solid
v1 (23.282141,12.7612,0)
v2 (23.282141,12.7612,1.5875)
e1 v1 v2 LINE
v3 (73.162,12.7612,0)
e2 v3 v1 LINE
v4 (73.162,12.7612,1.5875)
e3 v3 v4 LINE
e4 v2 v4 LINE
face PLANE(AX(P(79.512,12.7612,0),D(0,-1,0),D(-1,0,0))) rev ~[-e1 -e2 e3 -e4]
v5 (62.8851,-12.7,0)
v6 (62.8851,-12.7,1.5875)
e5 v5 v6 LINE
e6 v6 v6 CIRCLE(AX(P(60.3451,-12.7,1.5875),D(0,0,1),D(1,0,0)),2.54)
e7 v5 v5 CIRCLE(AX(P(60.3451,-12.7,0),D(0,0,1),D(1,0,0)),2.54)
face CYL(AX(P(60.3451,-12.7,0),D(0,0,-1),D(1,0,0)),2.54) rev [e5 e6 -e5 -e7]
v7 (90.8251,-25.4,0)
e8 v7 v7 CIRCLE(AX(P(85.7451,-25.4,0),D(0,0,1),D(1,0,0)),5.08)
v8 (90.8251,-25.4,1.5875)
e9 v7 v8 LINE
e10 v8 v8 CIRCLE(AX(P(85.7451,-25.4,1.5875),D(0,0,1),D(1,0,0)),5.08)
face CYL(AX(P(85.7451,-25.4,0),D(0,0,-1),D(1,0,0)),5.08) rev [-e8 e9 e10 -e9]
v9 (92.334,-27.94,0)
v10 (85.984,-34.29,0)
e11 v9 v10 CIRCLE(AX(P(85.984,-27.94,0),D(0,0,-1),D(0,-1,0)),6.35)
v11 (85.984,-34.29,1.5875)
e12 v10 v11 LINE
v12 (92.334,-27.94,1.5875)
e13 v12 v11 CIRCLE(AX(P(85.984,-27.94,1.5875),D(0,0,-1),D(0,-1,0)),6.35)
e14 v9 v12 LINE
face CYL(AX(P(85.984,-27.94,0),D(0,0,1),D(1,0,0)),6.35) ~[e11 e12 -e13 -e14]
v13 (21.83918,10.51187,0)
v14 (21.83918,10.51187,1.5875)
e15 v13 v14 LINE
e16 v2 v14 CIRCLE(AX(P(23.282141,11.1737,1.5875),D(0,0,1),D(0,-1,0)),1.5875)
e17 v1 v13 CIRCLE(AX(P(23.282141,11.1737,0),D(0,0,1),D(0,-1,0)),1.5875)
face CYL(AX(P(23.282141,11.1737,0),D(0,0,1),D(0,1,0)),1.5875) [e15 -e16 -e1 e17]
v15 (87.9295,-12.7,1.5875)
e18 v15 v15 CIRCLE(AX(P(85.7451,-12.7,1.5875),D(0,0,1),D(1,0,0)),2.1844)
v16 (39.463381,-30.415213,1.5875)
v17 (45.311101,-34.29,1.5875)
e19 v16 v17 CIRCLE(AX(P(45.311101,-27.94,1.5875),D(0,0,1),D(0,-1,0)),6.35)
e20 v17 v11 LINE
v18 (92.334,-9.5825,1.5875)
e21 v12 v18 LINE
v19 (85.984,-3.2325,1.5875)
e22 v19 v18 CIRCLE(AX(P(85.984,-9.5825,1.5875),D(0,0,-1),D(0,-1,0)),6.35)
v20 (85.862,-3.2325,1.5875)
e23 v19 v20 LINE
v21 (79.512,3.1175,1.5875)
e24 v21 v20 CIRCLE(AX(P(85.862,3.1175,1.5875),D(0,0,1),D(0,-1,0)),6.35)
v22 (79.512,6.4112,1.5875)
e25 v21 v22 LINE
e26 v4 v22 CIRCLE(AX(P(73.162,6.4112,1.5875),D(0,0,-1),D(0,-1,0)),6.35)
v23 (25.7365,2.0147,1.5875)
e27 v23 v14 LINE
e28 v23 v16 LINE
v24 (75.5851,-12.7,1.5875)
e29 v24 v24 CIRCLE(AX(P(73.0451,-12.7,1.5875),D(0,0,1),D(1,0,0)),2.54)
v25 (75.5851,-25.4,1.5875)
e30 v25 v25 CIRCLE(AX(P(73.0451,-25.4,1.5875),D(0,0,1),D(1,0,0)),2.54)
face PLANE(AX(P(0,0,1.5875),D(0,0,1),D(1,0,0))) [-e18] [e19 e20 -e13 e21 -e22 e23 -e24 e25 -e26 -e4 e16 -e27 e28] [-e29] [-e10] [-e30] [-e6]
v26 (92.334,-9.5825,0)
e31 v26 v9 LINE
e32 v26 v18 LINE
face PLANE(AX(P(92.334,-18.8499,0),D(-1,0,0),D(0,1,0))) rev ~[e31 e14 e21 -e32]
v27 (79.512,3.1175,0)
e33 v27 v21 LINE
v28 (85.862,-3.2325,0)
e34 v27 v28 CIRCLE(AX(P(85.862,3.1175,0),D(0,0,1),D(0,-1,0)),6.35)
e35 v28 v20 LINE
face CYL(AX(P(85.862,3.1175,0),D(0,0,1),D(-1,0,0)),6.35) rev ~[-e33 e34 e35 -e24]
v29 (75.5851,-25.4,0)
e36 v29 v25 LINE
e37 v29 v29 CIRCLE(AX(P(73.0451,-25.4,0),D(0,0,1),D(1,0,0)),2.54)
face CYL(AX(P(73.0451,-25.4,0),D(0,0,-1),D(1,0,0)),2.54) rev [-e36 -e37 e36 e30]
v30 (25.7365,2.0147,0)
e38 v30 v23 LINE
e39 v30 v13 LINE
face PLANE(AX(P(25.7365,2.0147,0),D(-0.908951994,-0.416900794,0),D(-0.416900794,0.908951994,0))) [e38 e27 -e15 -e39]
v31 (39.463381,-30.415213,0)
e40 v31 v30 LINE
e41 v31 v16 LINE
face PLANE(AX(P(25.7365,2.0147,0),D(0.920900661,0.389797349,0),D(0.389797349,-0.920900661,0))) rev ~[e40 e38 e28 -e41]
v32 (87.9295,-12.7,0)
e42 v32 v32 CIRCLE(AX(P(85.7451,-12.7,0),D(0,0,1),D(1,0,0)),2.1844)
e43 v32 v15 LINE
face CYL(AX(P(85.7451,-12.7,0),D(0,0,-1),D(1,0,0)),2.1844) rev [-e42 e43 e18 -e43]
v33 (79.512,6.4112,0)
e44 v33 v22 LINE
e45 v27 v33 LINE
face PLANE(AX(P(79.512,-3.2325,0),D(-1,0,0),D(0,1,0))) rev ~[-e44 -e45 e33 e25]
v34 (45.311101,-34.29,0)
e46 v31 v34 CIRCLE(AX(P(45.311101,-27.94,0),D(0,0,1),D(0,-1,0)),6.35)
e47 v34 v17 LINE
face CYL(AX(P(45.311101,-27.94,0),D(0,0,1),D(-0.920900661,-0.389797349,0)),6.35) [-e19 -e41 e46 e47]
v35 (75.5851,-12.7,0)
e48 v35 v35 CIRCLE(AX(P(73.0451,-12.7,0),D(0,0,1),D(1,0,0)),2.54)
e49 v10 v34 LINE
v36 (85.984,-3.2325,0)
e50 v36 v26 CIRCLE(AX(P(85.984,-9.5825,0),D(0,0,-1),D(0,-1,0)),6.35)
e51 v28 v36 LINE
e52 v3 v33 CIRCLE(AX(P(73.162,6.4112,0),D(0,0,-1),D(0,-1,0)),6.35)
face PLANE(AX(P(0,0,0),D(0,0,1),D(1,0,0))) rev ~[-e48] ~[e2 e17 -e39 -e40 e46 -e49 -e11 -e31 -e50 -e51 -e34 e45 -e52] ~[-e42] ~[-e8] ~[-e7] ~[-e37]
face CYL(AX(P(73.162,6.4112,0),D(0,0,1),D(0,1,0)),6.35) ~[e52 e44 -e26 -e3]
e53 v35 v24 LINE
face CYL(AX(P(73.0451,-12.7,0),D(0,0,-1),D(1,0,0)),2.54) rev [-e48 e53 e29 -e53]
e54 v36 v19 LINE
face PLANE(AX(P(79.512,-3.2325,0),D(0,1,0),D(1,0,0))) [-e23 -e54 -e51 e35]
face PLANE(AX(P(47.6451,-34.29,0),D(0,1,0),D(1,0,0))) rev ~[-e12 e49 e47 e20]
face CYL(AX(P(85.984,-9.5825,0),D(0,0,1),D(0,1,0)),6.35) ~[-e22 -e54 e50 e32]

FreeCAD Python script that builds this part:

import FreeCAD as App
import Part
import Sketcher
Q = App.Units.Quantity


def edges_at(feature, points):
    """Names of the edges that pass closest to the given points."""
    edges = feature.Shape.Edges
    near = lambda p: min(range(len(edges)), key=lambda i: edges[i].distToShape(Part.Vertex(*p))[0])
    return sorted({f"Edge{near(p) + 1}" for p in points})


def add_polygon(sketch, points):
    """Adds a closed chain of lines whose ends are joined by coincident constraints."""
    first, n = sketch.GeometryCount, len(points)
    for a, b in zip(points, points[1:] + points[:1]):
        sketch.addGeometry(Part.LineSegment(App.Vector(*a, 0), App.Vector(*b, 0)), False)
    for i in range(n):
        sketch.addConstraint(Sketcher.Constraint("Coincident", first + i, 2, first + (i + 1) % n, 1))

doc = App.newDocument("Part")
body = doc.addObject("PartDesign::Body", "Body")

sketch1 = body.newObject("Sketcher::SketchObject", "Sketch")
sketch1.AttachmentSupport = (doc.getObject("XY_Plane"), [""])
sketch1.MapMode = "FlatFace"
add_polygon(sketch1, [(79.5, 12.8), (20.8, 12.8), (25.7, 2), (41.1, -34.3), (92.3, -34.3), (92.3, -3.2), (79.5, -3.2)])
sketch1.addGeometry(Part.Circle(App.Vector(85.7, -12.7, 0), App.Vector(0, 0, 1), 2.2), False)
sketch1.addGeometry(Part.Circle(App.Vector(73, -25.4, 0), App.Vector(0, 0, 1), 2.5), False)
sketch1.addGeometry(Part.Circle(App.Vector(85.7, -25.4, 0), App.Vector(0, 0, 1), 5.1), False)
sketch1.addGeometry(Part.Circle(App.Vector(60.3, -12.7, 0), App.Vector(0, 0, 1), 2.5), False)
sketch1.addGeometry(Part.Circle(App.Vector(73, -12.7, 0), App.Vector(0, 0, 1), 2.5), False)
sketch1.addConstraint([
    Sketcher.Constraint("Horizontal", 0),
    Sketcher.Constraint("Horizontal", 3),
    Sketcher.Constraint("Vertical", 4),
    Sketcher.Constraint("Horizontal", 5),
    Sketcher.Constraint("Vertical", 6),
    Sketcher.Constraint("Equal", 8, 10),
    Sketcher.Constraint("Equal", 10, 11),
    Sketcher.Constraint("Horizontal", 8, 3, 9, 3),
    Sketcher.Constraint("Horizontal", 7, 3, 10, 3),
    Sketcher.Constraint("Horizontal", 10, 3, 11, 3),
    Sketcher.Constraint("Vertical", 7, 3, 9, 3),
    Sketcher.Constraint("Vertical", 8, 3, 11, 3),
    Sketcher.Constraint("Diameter", 9, Q("0.4 in")),
    Sketcher.Constraint("Diameter", 8, Q("0.2 in")),
    Sketcher.Constraint("Diameter", 7, Q("0.172 in")),
    Sketcher.Constraint("DistanceY", 8, 3, -1, 1, Q("1 in")),
    Sketcher.Constraint("DistanceX", 10, 3, 7, 3, Q("1 in")),
    Sketcher.Constraint("DistanceY", 7, 3, -1, 1, Q("0.5 in")),
    Sketcher.Constraint("DistanceX", 8, 3, 7, 3, Q("0.5 in")),
    Sketcher.Constraint("DistanceY", 2, 2, -1, 1, Q("1.35 in")),
    Sketcher.Constraint("Angle", 1, Q("-65.361 deg")),
    Sketcher.Constraint("DistanceX", 0, 2, 0, 1, Q("2.3112 in")),
    Sketcher.Constraint("DistanceX", 5, 2, 5, 1, Q("0.5048 in")),
    Sketcher.Constraint("DistanceX", 1, 2, 2, 2, Q("0.605 in")),
    Sketcher.Constraint("Distance", 2, Q("1.5521 in")),
    Sketcher.Constraint("DistanceX", 3, 1, 3, 2, Q("51.2305 mm")),
    Sketcher.Constraint("DistanceY", 4, 1, 4, 2, Q("31.0575 mm")),
    Sketcher.Constraint("DistanceX", -1, 1, 7, 3, Q("3.3758 in")),
    Sketcher.Constraint("DistanceX", -1, 1, 0, 2, Q("0.8192 in")),
])
pad1 = body.newObject("PartDesign::Pad", "Pad")
pad1.Profile = sketch1
pad1.Length = Q("0.0625 in")
doc.recompute()

fillet = body.newObject("PartDesign::Fillet", "Fillet")
fillet.Base = (pad1, edges_at(pad1, [
    (79.512, 12.761, 0.794),
    (79.512, -3.232, 0.794),
    (92.334, -3.232, 0.794),
    (92.334, -34.29, 0.794),
    (41.103, -34.29, 0.794),
]))
fillet.Radius = Q("0.25 in")
doc.recompute()

fillet2 = body.newObject("PartDesign::Fillet", "Fillet001")
fillet2.Base = (fillet, edges_at(fillet, [(20.808, 12.761, 0.794)]))
fillet2.Radius = Q("0.0625 in")

doc.recompute()
